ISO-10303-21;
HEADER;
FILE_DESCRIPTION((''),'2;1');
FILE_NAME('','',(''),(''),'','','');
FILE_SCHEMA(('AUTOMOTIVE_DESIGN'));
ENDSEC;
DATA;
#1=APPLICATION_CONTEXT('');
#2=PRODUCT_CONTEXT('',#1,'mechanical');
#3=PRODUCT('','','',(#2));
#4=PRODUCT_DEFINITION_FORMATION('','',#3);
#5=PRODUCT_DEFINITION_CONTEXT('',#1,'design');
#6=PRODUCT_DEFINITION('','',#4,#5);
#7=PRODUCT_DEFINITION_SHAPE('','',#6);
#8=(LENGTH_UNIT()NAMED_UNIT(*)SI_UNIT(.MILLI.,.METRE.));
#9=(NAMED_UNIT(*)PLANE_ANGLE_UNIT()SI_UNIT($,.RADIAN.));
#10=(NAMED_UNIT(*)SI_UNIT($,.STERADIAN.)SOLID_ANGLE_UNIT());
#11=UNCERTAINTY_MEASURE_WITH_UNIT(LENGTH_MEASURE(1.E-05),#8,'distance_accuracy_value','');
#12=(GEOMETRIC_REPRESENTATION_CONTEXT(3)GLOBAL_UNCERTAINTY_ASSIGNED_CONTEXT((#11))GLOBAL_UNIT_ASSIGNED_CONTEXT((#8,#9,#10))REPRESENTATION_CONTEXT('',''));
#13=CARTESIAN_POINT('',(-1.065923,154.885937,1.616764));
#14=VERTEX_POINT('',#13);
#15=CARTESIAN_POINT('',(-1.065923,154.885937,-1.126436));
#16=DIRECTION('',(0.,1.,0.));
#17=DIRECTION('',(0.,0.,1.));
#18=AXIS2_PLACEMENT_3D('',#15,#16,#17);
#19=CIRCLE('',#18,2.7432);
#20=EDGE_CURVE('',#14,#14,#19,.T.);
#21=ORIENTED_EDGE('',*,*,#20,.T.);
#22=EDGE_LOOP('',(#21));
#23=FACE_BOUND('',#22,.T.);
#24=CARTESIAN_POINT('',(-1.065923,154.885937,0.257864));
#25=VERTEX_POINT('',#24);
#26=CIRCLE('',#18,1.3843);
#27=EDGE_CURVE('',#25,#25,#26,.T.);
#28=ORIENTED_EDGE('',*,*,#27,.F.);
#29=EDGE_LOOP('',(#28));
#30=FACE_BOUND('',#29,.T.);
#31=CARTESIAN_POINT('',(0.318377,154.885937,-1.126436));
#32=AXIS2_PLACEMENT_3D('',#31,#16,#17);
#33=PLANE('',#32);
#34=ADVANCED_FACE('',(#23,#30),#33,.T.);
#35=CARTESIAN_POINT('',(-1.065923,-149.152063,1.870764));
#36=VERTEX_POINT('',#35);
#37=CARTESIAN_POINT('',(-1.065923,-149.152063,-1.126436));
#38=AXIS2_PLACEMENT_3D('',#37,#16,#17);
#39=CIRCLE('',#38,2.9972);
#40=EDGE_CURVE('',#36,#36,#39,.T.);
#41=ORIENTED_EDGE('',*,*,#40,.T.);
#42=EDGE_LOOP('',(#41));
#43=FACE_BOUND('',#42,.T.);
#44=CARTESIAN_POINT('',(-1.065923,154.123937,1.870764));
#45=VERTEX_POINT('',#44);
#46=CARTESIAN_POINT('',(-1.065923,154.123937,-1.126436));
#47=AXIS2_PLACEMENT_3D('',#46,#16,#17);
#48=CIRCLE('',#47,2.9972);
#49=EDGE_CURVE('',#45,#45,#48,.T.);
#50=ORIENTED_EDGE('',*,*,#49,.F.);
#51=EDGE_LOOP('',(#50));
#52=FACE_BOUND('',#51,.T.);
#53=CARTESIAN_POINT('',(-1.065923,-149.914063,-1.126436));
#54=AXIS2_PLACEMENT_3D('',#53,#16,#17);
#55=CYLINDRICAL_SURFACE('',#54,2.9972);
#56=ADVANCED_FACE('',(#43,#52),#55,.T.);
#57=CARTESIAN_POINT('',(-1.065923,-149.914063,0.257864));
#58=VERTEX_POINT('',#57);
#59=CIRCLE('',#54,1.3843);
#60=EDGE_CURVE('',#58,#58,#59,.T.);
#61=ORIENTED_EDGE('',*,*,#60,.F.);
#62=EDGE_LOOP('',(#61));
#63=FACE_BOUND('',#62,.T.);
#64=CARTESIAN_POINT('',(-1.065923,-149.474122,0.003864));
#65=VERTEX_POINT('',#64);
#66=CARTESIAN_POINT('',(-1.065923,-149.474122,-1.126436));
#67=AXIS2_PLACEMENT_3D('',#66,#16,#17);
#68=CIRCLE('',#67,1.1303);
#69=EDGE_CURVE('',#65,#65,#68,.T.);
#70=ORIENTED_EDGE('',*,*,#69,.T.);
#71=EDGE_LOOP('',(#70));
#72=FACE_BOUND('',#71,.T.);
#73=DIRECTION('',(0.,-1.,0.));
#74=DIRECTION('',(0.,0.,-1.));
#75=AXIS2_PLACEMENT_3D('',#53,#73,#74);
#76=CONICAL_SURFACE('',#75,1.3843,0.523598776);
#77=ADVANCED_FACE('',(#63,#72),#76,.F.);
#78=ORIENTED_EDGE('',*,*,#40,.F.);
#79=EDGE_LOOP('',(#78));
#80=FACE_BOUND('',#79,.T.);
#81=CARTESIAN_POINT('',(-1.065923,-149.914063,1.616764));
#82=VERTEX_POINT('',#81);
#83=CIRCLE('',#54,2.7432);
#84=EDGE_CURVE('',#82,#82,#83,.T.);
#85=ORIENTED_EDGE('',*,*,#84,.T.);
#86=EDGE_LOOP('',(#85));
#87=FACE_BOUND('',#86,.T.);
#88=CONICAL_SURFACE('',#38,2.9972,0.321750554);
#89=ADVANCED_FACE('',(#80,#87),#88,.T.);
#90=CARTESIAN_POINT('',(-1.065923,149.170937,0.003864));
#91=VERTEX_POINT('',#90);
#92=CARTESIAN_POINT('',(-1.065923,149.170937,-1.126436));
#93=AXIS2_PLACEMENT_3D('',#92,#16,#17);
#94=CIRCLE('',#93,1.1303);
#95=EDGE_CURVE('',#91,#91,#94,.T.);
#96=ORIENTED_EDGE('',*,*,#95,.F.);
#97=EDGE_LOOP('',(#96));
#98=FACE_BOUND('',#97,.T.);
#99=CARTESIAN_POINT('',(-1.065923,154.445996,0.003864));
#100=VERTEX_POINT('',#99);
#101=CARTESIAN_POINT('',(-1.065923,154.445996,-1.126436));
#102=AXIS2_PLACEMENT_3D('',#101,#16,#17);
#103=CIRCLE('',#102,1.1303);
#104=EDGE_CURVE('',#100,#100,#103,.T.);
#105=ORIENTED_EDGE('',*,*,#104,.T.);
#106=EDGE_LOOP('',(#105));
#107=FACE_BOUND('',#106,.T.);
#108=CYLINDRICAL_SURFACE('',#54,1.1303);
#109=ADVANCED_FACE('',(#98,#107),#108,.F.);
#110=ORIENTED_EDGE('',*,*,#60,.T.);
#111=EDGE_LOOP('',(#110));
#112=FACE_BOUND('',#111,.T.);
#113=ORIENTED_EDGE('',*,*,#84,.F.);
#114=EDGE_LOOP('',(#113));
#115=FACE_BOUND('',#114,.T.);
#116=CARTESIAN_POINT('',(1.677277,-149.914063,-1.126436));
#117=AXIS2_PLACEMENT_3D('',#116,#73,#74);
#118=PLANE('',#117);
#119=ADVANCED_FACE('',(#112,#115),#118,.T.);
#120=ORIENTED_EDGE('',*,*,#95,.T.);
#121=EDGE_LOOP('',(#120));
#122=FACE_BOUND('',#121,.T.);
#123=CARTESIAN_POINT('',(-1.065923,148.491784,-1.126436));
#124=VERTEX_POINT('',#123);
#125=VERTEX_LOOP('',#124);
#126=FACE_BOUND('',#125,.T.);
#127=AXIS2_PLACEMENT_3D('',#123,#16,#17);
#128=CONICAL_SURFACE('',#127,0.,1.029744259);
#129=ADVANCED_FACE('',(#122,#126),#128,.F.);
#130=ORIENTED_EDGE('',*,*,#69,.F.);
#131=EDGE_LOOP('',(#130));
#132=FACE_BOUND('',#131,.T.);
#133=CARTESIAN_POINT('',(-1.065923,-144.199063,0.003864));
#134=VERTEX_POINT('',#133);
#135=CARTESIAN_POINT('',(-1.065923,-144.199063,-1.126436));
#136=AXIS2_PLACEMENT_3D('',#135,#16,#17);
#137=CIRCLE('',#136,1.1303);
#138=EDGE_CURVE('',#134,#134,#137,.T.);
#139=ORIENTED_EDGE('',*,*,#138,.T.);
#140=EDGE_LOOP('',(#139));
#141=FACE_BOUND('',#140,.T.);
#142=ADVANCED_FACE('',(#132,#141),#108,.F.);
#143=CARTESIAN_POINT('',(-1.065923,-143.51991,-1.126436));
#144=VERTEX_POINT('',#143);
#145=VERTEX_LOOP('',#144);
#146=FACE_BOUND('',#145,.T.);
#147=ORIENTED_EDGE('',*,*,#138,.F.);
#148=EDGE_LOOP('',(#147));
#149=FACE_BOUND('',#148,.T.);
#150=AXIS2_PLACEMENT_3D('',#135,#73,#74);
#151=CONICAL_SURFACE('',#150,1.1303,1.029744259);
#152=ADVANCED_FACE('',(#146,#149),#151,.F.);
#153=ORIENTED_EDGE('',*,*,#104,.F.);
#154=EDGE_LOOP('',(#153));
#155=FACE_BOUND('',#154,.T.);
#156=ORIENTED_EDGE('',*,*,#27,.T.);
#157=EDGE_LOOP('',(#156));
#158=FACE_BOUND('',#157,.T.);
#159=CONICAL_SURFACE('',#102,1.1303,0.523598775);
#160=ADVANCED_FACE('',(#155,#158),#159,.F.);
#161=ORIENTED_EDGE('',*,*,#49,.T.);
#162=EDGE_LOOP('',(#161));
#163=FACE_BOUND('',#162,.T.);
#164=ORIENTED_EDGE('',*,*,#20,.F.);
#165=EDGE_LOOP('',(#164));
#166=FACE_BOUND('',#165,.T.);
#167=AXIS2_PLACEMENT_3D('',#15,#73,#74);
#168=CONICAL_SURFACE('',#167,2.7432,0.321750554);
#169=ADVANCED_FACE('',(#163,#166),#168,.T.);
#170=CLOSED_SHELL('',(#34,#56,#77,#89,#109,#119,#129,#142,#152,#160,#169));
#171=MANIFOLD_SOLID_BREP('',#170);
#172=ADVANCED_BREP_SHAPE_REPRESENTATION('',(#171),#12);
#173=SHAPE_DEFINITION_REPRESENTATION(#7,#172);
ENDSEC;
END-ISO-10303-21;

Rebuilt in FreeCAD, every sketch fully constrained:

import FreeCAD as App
import Part
import Sketcher
from FreeCAD import Vector
Q = App.Units.Quantity

doc = App.newDocument("Part")
body = doc.addObject("PartDesign::Body", "Body")

sketch1 = body.newObject("Sketcher::SketchObject", "Sketch")
sketch1.AttachmentSupport = (doc.getObject("XY_Plane"), [""])
sketch1.MapMode = "FlatFace"
sketch1.AttachmentOffset = App.Placement(Vector(0, 0, -1.126436), App.Rotation())
sketch1.addGeometry(Part.LineSegment(Vector(0.1, -144.2, 0), Vector(-1.1, -143.5, 0)), False)
sketch1.addGeometry(Part.LineSegment(Vector(-1.1, -143.5, 0), Vector(-1.1, 148.5, 0)), False)
sketch1.addGeometry(Part.LineSegment(Vector(-1.1, 148.5, 0), Vector(0.1, 149.2, 0)), False)
sketch1.addGeometry(Part.LineSegment(Vector(0.1, 149.2, 0), Vector(0.1, 154.4, 0)), False)
sketch1.addGeometry(Part.LineSegment(Vector(0.1, 154.4, 0), Vector(0.3, 154.9, 0)), False)
sketch1.addGeometry(Part.LineSegment(Vector(0.3, 154.9, 0), Vector(1.7, 154.9, 0)), False)
sketch1.addGeometry(Part.LineSegment(Vector(1.7, 154.9, 0), Vector(1.9, 154.1, 0)), False)
sketch1.addGeometry(Part.LineSegment(Vector(1.9, 154.1, 0), Vector(1.9, -149.2, 0)), False)
sketch1.addGeometry(Part.LineSegment(Vector(1.9, -149.2, 0), Vector(1.7, -149.9, 0)), False)
sketch1.addGeometry(Part.LineSegment(Vector(1.7, -149.9, 0), Vector(0.3, -149.9, 0)), False)
sketch1.addGeometry(Part.LineSegment(Vector(0.3, -149.9, 0), Vector(0.1, -149.5, 0)), False)
sketch1.addGeometry(Part.LineSegment(Vector(0.1, -149.5, 0), Vector(0.1, -144.2, 0)), False)
sketch1.addGeometry(Part.LineSegment(Vector(-1.1, -149.9, 0), Vector(-1.1, 154.9, 0)), True)
sketch1.addConstraint(Sketcher.Constraint("Coincident", 0, 2, 1, 1))
sketch1.addConstraint(Sketcher.Constraint("Coincident", 1, 2, 2, 1))
sketch1.addConstraint(Sketcher.Constraint("Coincident", 2, 2, 3, 1))
sketch1.addConstraint(Sketcher.Constraint("Coincident", 3, 2, 4, 1))
sketch1.addConstraint(Sketcher.Constraint("Coincident", 4, 2, 5, 1))
sketch1.addConstraint(Sketcher.Constraint("Coincident", 5, 2, 6, 1))
sketch1.addConstraint(Sketcher.Constraint("Coincident", 6, 2, 7, 1))
sketch1.addConstraint(Sketcher.Constraint("Coincident", 7, 2, 8, 1))
sketch1.addConstraint(Sketcher.Constraint("Coincident", 8, 2, 9, 1))
sketch1.addConstraint(Sketcher.Constraint("Coincident", 9, 2, 10, 1))
sketch1.addConstraint(Sketcher.Constraint("Coincident", 10, 2, 11, 1))
sketch1.addConstraint(Sketcher.Constraint("Coincident", 11, 2, 0, 1))
sketch1.addConstraint(Sketcher.Constraint("Vertical", 1))
sketch1.addConstraint(Sketcher.Constraint("Vertical", 3))
sketch1.addConstraint(Sketcher.Constraint("Horizontal", 5))
sketch1.addConstraint(Sketcher.Constraint("Vertical", 7))
sketch1.addConstraint(Sketcher.Constraint("Horizontal", 9))
sketch1.addConstraint(Sketcher.Constraint("Vertical", 11))
sketch1.addConstraint(Sketcher.Constraint("Vertical", 12))
sketch1.addConstraint(Sketcher.Constraint("Horizontal", 9, 2, 12, 1))
sketch1.addConstraint(Sketcher.Constraint("Horizontal", 5, 2, 12, 2))
sketch1.addConstraint(Sketcher.Constraint("Vertical", 5, 2, 8, 2))
sketch1.addConstraint(Sketcher.Constraint("Vertical", 4, 2, 9, 2))
sketch1.addConstraint(Sketcher.Constraint("Vertical", 3, 2, 10, 2))
sketch1.addConstraint(Sketcher.Constraint("Vertical", 1, 2, 12, 1))
sketch1.addConstraint(Sketcher.Constraint("Equal", 3, 11))
sketch1.addConstraint(Sketcher.Constraint("Equal", 0, 2))
sketch1.addConstraint(Sketcher.Constraint("Equal", 6, 8))
sketch1.addConstraint(Sketcher.Constraint("Equal", 4, 10))
sketch1.addConstraint(Sketcher.Constraint("DistanceY", 12, 1, 12, 2, Q("12 in")))
sketch1.addConstraint(Sketcher.Constraint("Angle", 0, Q("149 deg")))
sketch1.addConstraint(Sketcher.Constraint("Angle", 4, Q("60 deg")))
sketch1.addConstraint(Sketcher.Constraint("DistanceY", 7, 2, 7, 1, Q("11.94 in")))
sketch1.addConstraint(Sketcher.Constraint("Distance", 4, Q("0.02 in")))
sketch1.addConstraint(Sketcher.Constraint("DistanceX", 5, 2, 6, 2, Q("0.01 in")))
sketch1.addConstraint(Sketcher.Constraint("DistanceX", 5, 1, 5, 2, Q("0.0535 in")))
sketch1.addConstraint(Sketcher.Constraint("DistanceY", 2, 2, 4, 2, Q("0.225 in")))
sketch1.addConstraint(Sketcher.Constraint("DistanceX", 1, 2, 5, 2, Q("0.108 in")))
sketch1.addConstraint(Sketcher.Constraint("DistanceY", 0, 2, -1, 1, Q("143.51991 mm")))
sketch1.addConstraint(Sketcher.Constraint("DistanceX", 0, 2, -1, 1, Q("1.065923 mm")))
revolution = body.newObject("PartDesign::Revolution", "Revolution")
revolution.Profile = sketch1
revolution.ReferenceAxis = (sketch1, ["Axis0"])
revolution.Angle = 360

doc.recompute()
